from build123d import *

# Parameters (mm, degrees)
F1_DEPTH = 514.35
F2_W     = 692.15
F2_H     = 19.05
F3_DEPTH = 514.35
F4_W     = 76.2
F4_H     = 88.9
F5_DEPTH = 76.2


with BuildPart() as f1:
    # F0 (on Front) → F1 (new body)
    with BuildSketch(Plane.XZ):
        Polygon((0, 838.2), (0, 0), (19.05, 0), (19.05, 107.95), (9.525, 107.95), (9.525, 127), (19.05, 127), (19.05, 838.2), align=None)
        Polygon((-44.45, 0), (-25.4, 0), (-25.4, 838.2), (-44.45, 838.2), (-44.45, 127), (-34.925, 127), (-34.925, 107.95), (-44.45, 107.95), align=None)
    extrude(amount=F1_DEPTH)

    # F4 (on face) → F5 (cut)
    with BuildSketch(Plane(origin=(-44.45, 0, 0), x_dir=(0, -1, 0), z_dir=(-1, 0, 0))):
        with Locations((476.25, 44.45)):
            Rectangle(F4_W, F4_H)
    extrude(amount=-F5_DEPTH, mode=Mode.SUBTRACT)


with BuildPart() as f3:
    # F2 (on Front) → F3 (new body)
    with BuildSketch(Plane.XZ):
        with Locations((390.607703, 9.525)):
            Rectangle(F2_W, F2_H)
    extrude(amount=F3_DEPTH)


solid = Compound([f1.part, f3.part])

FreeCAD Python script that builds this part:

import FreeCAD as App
import Part
import Sketcher
from FreeCAD import Vector
Q = App.Units.Quantity


def add_polygon(sketch, points):
    """Adds a closed chain of lines whose ends are joined by coincident constraints."""
    first, n = sketch.GeometryCount, len(points)
    for a, b in zip(points, points[1:] + points[:1]):
        sketch.addGeometry(Part.LineSegment(App.Vector(*a, 0), App.Vector(*b, 0)), False)
    for i in range(n):
        sketch.addConstraint(Sketcher.Constraint("Coincident", first + i, 2, first + (i + 1) % n, 1))

doc = App.newDocument("Part")
body = doc.addObject("PartDesign::Body", "Body")
body.AllowCompound = True

sketch1 = body.newObject("Sketcher::SketchObject", "Sketch")
sketch1.AttachmentSupport = (doc.getObject("XZ_Plane"), [""])
sketch1.MapMode = "FlatFace"
add_polygon(sketch1, [(0, 838), (0, 0), (19, 0), (19, 108), (10, 108), (10, 127), (19, 127), (19, 838)])
add_polygon(sketch1, [(-44, 0), (-25, 0), (-25, 838), (-44, 838), (-44, 127), (-35, 127), (-35, 108), (-44, 108)])
sketch1.addConstraint([
    Sketcher.Constraint("Vertical", 0),
    Sketcher.Constraint("Horizontal", 1),
    Sketcher.Constraint("Vertical", 2),
    Sketcher.Constraint("Horizontal", 3),
    Sketcher.Constraint("Vertical", 4),
    Sketcher.Constraint("Horizontal", 5),
    Sketcher.Constraint("Vertical", 6),
    Sketcher.Constraint("Horizontal", 7),
    Sketcher.Constraint("Horizontal", 8),
    Sketcher.Constraint("Vertical", 9),
    Sketcher.Constraint("Horizontal", 10),
    Sketcher.Constraint("Vertical", 11),
    Sketcher.Constraint("Horizontal", 12),
    Sketcher.Constraint("Vertical", 13),
    Sketcher.Constraint("Horizontal", 14),
    Sketcher.Constraint("Vertical", 15),
    Sketcher.Constraint("Coincident", 0, 2, -1, 1),
    Sketcher.Constraint("PointOnObject", 8, 2, -1),
    Sketcher.Constraint("Horizontal", 7, 2, 9, 2),
    Sketcher.Constraint("Horizontal", 5, 2, 11, 2),
    Sketcher.Constraint("Horizontal", 3, 2, 13, 2),
    Sketcher.Constraint("Vertical", 2, 2, 5, 2),
    Sketcher.Constraint("Vertical", 11, 2, 14, 2),
    Sketcher.Constraint("Equal", 7, 8),
    Sketcher.Constraint("Equal", 5, 12),
    Sketcher.Constraint("Equal", 10, 4),
    Sketcher.Constraint("DistanceY", 0, 2, 0, 1, Q("33 in")),
    Sketcher.Constraint("DistanceY", 6, 1, 6, 2, Q("28 in")),
    Sketcher.Constraint("DistanceX", 8, 2, -1, 1, Q("1 in")),
    Sketcher.Constraint("DistanceX", 1, 1, 1, 2, Q("0.75 in")),
    Sketcher.Constraint("DistanceX", 3, 2, 3, 1, Q("0.375 in")),
])
pad1 = body.newObject("PartDesign::Pad", "Pad")
pad1.Profile = sketch1
pad1.Length = Q("20.25 in")

sketch2 = body.newObject("Sketcher::SketchObject", "Sketch001")
sketch2.AttachmentSupport = (doc.getObject("YZ_Plane"), [""])
sketch2.MapMode = "FlatFace"
sketch2.AttachmentOffset = App.Placement(Vector(0, 0, -1.75 * 25.4), App.Rotation())
add_polygon(sketch2, [(-438, 89), (-438, 0), (-514, 0), (-514, 89)])
sketch2.addConstraint([
    Sketcher.Constraint("Vertical", 0),
    Sketcher.Constraint("Horizontal", 1),
    Sketcher.Constraint("Vertical", 2),
    Sketcher.Constraint("Horizontal", 3),
    Sketcher.Constraint("PointOnObject", 0, 2, -1),
    Sketcher.Constraint("DistanceX", 1, 2, 1, 1, Q("3 in")),
    Sketcher.Constraint("DistanceY", 0, 2, 0, 1, Q("3.5 in")),
    Sketcher.Constraint("DistanceX", 0, 2, -1, 1, Q("17.25 in")),
])
pocket1 = body.newObject("PartDesign::Pocket", "Pocket")
pocket1.Profile = sketch2
pocket1.Length = Q("3 in")
pocket1.Reversed = True
body2 = doc.addObject("PartDesign::Body", "Body001")

sketch3 = body2.newObject("Sketcher::SketchObject", "Sketch002")
sketch3.AttachmentSupport = (doc.getObject("XZ_Plane001"), [""])
sketch3.MapMode = "FlatFace"
add_polygon(sketch3, [(45, 19), (45, 0), (737, 0), (737, 19)])
sketch3.addConstraint([
    Sketcher.Constraint("Vertical", 0),
    Sketcher.Constraint("Horizontal", 1),
    Sketcher.Constraint("Vertical", 2),
    Sketcher.Constraint("Horizontal", 3),
    Sketcher.Constraint("PointOnObject", 0, 2, -1),
    Sketcher.Constraint("DistanceX", 1, 1, 1, 2, Q("27.25 in")),
    Sketcher.Constraint("DistanceY", 0, 2, 0, 1, Q("0.75 in")),
    Sketcher.Constraint("DistanceX", -1, 1, 0, 2, Q("44.532703 mm")),
])
pad2 = body2.newObject("PartDesign::Pad", "Pad001")
pad2.Profile = sketch3
pad2.Length = Q("20.25 in")

doc.recompute()
